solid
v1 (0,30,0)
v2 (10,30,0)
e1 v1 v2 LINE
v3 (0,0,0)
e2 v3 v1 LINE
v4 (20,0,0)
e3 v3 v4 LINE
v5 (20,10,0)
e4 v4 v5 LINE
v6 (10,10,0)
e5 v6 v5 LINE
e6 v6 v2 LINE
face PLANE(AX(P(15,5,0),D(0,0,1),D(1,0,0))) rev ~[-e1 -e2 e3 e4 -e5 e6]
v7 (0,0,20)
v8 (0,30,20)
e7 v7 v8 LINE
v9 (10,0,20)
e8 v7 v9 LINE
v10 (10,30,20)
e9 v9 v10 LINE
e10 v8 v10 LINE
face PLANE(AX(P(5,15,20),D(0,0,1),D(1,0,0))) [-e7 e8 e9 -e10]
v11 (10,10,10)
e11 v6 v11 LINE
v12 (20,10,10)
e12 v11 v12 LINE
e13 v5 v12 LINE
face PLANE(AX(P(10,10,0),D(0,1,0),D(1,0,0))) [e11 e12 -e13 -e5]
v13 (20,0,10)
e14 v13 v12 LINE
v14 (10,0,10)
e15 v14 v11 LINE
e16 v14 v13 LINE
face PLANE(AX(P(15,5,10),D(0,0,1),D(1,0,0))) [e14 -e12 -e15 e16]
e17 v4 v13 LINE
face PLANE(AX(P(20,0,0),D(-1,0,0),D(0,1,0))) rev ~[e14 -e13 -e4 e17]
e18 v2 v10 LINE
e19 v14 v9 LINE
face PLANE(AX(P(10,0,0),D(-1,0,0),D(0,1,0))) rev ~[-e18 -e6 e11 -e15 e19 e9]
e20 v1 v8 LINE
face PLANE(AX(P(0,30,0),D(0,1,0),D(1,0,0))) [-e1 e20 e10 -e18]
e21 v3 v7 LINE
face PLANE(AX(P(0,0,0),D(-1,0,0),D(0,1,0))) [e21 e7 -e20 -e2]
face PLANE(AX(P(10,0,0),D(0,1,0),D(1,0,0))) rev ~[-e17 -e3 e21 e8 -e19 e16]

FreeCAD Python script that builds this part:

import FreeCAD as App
import Part
import Sketcher
Q = App.Units.Quantity


def add_polygon(sketch, points):
    """Adds a closed chain of lines whose ends are joined by coincident constraints."""
    first, n = sketch.GeometryCount, len(points)
    for a, b in zip(points, points[1:] + points[:1]):
        sketch.addGeometry(Part.LineSegment(App.Vector(*a, 0), App.Vector(*b, 0)), False)
    for i in range(n):
        sketch.addConstraint(Sketcher.Constraint("Coincident", first + i, 2, first + (i + 1) % n, 1))

doc = App.newDocument("Part")
body = doc.addObject("PartDesign::Body", "Body")

# Sketch on XY plane
sketch1 = body.newObject("Sketcher::SketchObject", "Sketch")
sketch1.AttachmentSupport = (doc.getObject("XY_Plane"), [""])
sketch1.MapMode = "FlatFace"
add_polygon(sketch1, [(10, 10), (10, 0), (20, 0), (20, 10)])  # lines 0-3
sketch1.addConstraint([
    Sketcher.Constraint("Vertical", 0),
    Sketcher.Constraint("Horizontal", 1),
    Sketcher.Constraint("Vertical", 2),
    Sketcher.Constraint("Horizontal", 3),
    Sketcher.Constraint("PointOnObject", 0, 2, -1),
    Sketcher.Constraint("Equal", 3, 0),
    Sketcher.Constraint("DistanceX", 1, 1, 1, 2, Q("10 mm")),
    Sketcher.Constraint("DistanceX", -1, 1, 0, 2, Q("10 mm")),
])
pad1 = body.newObject("PartDesign::Pad", "Pad")
pad1.Profile = sketch1
pad1.Length = 10
body2 = doc.addObject("PartDesign::Body", "Body001")

# Sketch on XY plane
sketch2 = body2.newObject("Sketcher::SketchObject", "Sketch001")
sketch2.AttachmentSupport = (doc.getObject("XY_Plane001"), [""])
sketch2.MapMode = "FlatFace"
add_polygon(sketch2, [(0, 30), (0, 0), (10, 0), (10, 30)])  # lines 0-3
sketch2.addConstraint([
    Sketcher.Constraint("Vertical", 0),
    Sketcher.Constraint("Horizontal", 1),
    Sketcher.Constraint("Vertical", 2),
    Sketcher.Constraint("Horizontal", 3),
    Sketcher.Constraint("Coincident", 0, 2, -1, 1),
    Sketcher.Constraint("DistanceX", 1, 1, 1, 2, Q("10 mm")),
    Sketcher.Constraint("DistanceY", 0, 2, 0, 1, Q("30 mm")),
])
pad2 = body2.newObject("PartDesign::Pad", "Pad001")
pad2.Profile = sketch2
pad2.Length = 20
doc.recompute()

boolean = body2.newObject("PartDesign::Boolean", "Boolean")
boolean.Type = "Fuse"
boolean.addObjects([body])

doc.recompute()
